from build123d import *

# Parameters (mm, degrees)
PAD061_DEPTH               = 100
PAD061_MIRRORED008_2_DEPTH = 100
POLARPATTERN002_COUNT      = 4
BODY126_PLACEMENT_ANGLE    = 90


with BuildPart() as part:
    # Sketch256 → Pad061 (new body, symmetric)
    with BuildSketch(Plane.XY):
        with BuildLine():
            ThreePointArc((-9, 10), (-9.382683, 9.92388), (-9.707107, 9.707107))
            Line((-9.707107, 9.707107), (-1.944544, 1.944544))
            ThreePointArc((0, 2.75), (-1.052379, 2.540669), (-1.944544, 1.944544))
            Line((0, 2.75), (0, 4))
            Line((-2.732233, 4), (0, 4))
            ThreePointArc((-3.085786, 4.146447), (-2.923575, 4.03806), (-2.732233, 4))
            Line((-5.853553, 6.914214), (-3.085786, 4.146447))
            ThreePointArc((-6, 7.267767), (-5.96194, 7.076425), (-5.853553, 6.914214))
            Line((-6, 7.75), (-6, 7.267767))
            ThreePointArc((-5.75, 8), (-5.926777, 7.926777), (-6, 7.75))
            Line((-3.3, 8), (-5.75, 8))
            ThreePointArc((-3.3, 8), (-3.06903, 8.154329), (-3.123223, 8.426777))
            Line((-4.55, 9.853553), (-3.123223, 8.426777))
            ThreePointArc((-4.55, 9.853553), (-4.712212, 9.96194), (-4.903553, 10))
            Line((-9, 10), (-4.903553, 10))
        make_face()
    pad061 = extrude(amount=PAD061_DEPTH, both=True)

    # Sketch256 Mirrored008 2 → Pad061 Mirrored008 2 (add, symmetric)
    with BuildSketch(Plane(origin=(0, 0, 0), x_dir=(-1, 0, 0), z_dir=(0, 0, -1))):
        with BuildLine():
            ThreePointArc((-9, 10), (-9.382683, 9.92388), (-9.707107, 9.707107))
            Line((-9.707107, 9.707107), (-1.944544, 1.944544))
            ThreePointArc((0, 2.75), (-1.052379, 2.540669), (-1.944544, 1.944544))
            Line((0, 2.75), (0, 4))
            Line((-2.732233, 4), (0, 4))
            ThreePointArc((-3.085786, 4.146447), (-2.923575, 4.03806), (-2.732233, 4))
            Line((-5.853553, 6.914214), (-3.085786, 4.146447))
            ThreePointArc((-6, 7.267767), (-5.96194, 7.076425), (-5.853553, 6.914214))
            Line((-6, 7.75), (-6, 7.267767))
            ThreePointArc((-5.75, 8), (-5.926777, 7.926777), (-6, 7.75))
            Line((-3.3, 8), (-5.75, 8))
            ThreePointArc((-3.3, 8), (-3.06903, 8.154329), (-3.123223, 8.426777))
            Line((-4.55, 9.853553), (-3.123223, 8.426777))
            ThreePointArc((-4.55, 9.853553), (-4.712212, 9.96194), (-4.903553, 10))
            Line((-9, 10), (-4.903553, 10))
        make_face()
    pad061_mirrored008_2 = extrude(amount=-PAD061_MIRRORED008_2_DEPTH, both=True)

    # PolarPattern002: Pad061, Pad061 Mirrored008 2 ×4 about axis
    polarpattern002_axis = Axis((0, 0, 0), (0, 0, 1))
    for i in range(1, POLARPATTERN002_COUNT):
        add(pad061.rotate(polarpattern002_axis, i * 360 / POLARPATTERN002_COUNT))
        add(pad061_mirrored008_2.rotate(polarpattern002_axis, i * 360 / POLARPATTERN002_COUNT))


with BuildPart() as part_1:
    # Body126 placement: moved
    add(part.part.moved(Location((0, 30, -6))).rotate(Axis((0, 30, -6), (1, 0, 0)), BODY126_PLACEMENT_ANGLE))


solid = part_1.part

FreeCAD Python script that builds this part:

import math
import FreeCAD as App
import Part
import Sketcher
from FreeCAD import Vector
Q = App.Units.Quantity

doc = App.newDocument("Part")
body = doc.addObject("PartDesign::Body", "Body")

sketch1 = body.newObject("Sketcher::SketchObject", "Sketch")
sketch1.AttachmentSupport = (doc.getObject("XY_Plane"), [""])
sketch1.MapMode = "FlatFace"
sketch1.addGeometry([
    Part.ArcOfCircle(Part.Circle(Vector(-9, 9, 0), Vector(0, 0, 1), 1), math.radians(90), math.radians(135)),
    Part.LineSegment(Vector(-9.71, 9.71, 0), Vector(-1.94, 1.94, 0)),
    Part.ArcOfCircle(Part.Circle(Vector(0, 0, 0), Vector(0, 0, 1), 2.75), math.radians(90), math.radians(135)),
    Part.LineSegment(Vector(0, 2.75, 0), Vector(0, 4, 0)),
    Part.LineSegment(Vector(0, 4, 0), Vector(-2.73, 4, 0)),
    Part.ArcOfCircle(Part.Circle(Vector(-2.73, 4.5, 0), Vector(0, 0, 1), 0.5), math.radians(-135), math.radians(-90)),
    Part.LineSegment(Vector(-3.09, 4.15, 0), Vector(-5.85, 6.91, 0)),
    Part.ArcOfCircle(Part.Circle(Vector(-5.5, 7.27, 0), Vector(0, 0, 1), 0.5), math.radians(180), math.radians(225)),
    Part.LineSegment(Vector(-6, 7.27, 0), Vector(-6, 7.75, 0)),
    Part.ArcOfCircle(Part.Circle(Vector(-5.75, 7.75, 0), Vector(0, 0, 1), 0.25), math.radians(90), math.radians(180)),
    Part.LineSegment(Vector(-5.75, 8, 0), Vector(-3.3, 8, 0)),
    Part.ArcOfCircle(Part.Circle(Vector(-3.3, 8.25, 0), Vector(0, 0, 1), 0.25), math.radians(-90), math.radians(45)),
    Part.LineSegment(Vector(-3.12, 8.43, 0), Vector(-4.55, 9.85, 0)),
    Part.ArcOfCircle(Part.Circle(Vector(-4.9, 9.5, 0), Vector(0, 0, 1), 0.5), math.radians(45), math.radians(90)),
    Part.LineSegment(Vector(-4.9, 10, 0), Vector(-9, 10, 0)),
], False)
sketch1.addConstraint([
    Sketcher.Constraint("Coincident", 0, 2, 1, 1),
    Sketcher.Constraint("Coincident", 1, 2, 2, 2),
    Sketcher.Constraint("Coincident", 2, 1, 3, 1),
    Sketcher.Constraint("Coincident", 3, 2, 4, 1),
    Sketcher.Constraint("Coincident", 4, 2, 5, 2),
    Sketcher.Constraint("Coincident", 5, 1, 6, 1),
    Sketcher.Constraint("Coincident", 6, 2, 7, 2),
    Sketcher.Constraint("Coincident", 7, 1, 8, 1),
    Sketcher.Constraint("Coincident", 8, 2, 9, 2),
    Sketcher.Constraint("Coincident", 9, 1, 10, 1),
    Sketcher.Constraint("Tangent", 10, 2, 11, 1),
    Sketcher.Constraint("Tangent", 11, 2, 12, 1),
    Sketcher.Constraint("Coincident", 12, 2, 13, 1),
    Sketcher.Constraint("Tangent", 13, 2, 14, 1),
    Sketcher.Constraint("Tangent", 14, 2, 0, 1),
    Sketcher.Constraint("Vertical", 3),
    Sketcher.Constraint("Horizontal", 4),
    Sketcher.Constraint("Vertical", 8),
    Sketcher.Constraint("Horizontal", 10),
    Sketcher.Constraint("Horizontal", 14),
    Sketcher.Constraint("Coincident", 2, 3, -1, 1),
    Sketcher.Constraint("Equal", 5, 7),
    Sketcher.Constraint("Equal", 9, 11),
    Sketcher.Constraint("PointOnObject", 2, 1, -2),
    Sketcher.Constraint("Parallel", 1, 6),
    Sketcher.Constraint("Parallel", 6, 12),
    Sketcher.Constraint("Horizontal", 9, 3, 8, 2),
    Sketcher.Constraint("Radius", 0, 0.999999),
    Sketcher.Constraint("Angle", 1, Q("-45 deg")),
    Sketcher.Constraint("Radius", 9, 0.249999),
    Sketcher.Constraint("DistanceX", 0, 3, -1, 1, 9.000001),
    Sketcher.Constraint("DistanceY", -1, 1, 0, 3, 9.000001),
    Sketcher.Constraint("DistanceY", -1, 1, 3, 2, 4.0),
    Sketcher.Constraint("DistanceX", 7, 1, -1, 1, 6.0),
    Sketcher.Constraint("DistanceY", -1, 1, 9, 1, 8.0),
    Sketcher.Constraint("DistanceX", 10, 1, 10, 2, 2.45),
    Sketcher.Constraint("DistanceY", 3, 1, 3, 2, 1.25),
    Sketcher.Constraint("DistanceX", 11, 3, -1, 1, 3.3),
    Sketcher.Constraint("DistanceY", 0, 3, 13, 3, 0.500002),
    Sketcher.Constraint("DistanceX", 9, 1, 12, 2, 1.2),
    Sketcher.Constraint("DistanceX", 6, 2, 13, 3, 0.95),
    Sketcher.Constraint("Radius", 5, 0.499992),
    Sketcher.Constraint("DistanceX", 0, 2, 7, 3, 4.207099),
    Sketcher.Constraint("DistanceX", 4, 2, 4, 1, 2.732233),
    Sketcher.Constraint("DistanceY", 8, 1, 8, 2, 0.482233),
    Sketcher.Constraint("DistanceY", 7, 3, 13, 3, 2.232238),
    Sketcher.Constraint("DistanceX", 5, 1, 5, 3, 0.353551),
])
pad1 = body.newObject("PartDesign::Pad", "Pad")
pad1.Profile = sketch1
pad1.Length = 200
pad1.Midplane = True

sketch2 = body.newObject("Sketcher::SketchObject", "Sketch001")
sketch2.AttachmentSupport = (doc.getObject("XY_Plane"), [""])
sketch2.MapMode = "FlatFace"
sketch2.addGeometry([
    Part.ArcOfCircle(Part.Circle(Vector(9, 9, 0), Vector(0, 0, 1), 1), math.radians(45), math.radians(90)),
    Part.LineSegment(Vector(9.71, 9.71, 0), Vector(1.94, 1.94, 0)),
    Part.ArcOfCircle(Part.Circle(Vector(0, 0, 0), Vector(0, 0, 1), 2.75), math.radians(45), math.radians(90)),
    Part.LineSegment(Vector(0, 2.75, 0), Vector(0, 4, 0)),
    Part.LineSegment(Vector(0, 4, 0), Vector(2.73, 4, 0)),
    Part.ArcOfCircle(Part.Circle(Vector(2.73, 4.5, 0), Vector(0, 0, 1), 0.5), math.radians(-90), math.radians(-45)),
    Part.LineSegment(Vector(3.09, 4.15, 0), Vector(5.85, 6.91, 0)),
    Part.ArcOfCircle(Part.Circle(Vector(5.5, 7.27, 0), Vector(0, 0, 1), 0.5), math.radians(-45), math.radians(0)),
    Part.LineSegment(Vector(6, 7.27, 0), Vector(6, 7.75, 0)),
    Part.ArcOfCircle(Part.Circle(Vector(5.75, 7.75, 0), Vector(0, 0, 1), 0.25), math.radians(0), math.radians(90)),
    Part.LineSegment(Vector(5.75, 8, 0), Vector(3.3, 8, 0)),
    Part.ArcOfCircle(Part.Circle(Vector(3.3, 8.25, 0), Vector(0, 0, 1), 0.25), math.radians(135), math.radians(270)),
    Part.LineSegment(Vector(3.12, 8.43, 0), Vector(4.55, 9.85, 0)),
    Part.ArcOfCircle(Part.Circle(Vector(4.9, 9.5, 0), Vector(0, 0, 1), 0.5), math.radians(90), math.radians(135)),
    Part.LineSegment(Vector(4.9, 10, 0), Vector(9, 10, 0)),
], False)
sketch2.addConstraint([
    Sketcher.Constraint("Coincident", 0, 1, 1, 1),
    Sketcher.Constraint("Coincident", 1, 2, 2, 1),
    Sketcher.Constraint("Coincident", 2, 2, 3, 1),
    Sketcher.Constraint("Coincident", 3, 2, 4, 1),
    Sketcher.Constraint("Coincident", 4, 2, 5, 1),
    Sketcher.Constraint("Coincident", 5, 2, 6, 1),
    Sketcher.Constraint("Coincident", 6, 2, 7, 1),
    Sketcher.Constraint("Coincident", 7, 2, 8, 1),
    Sketcher.Constraint("Coincident", 8, 2, 9, 1),
    Sketcher.Constraint("Coincident", 9, 2, 10, 1),
    Sketcher.Constraint("Tangent", 10, 2, 11, 2),
    Sketcher.Constraint("Tangent", 11, 1, 12, 1),
    Sketcher.Constraint("Coincident", 12, 2, 13, 2),
    Sketcher.Constraint("Tangent", 13, 1, 14, 1),
    Sketcher.Constraint("Tangent", 14, 2, 0, 2),
    Sketcher.Constraint("Vertical", 3),
    Sketcher.Constraint("Horizontal", 4),
    Sketcher.Constraint("Vertical", 8),
    Sketcher.Constraint("Horizontal", 10),
    Sketcher.Constraint("Horizontal", 14),
    Sketcher.Constraint("Coincident", 2, 3, -1, 1),
    Sketcher.Constraint("Equal", 5, 7),
    Sketcher.Constraint("Equal", 9, 11),
    Sketcher.Constraint("PointOnObject", 2, 2, -2),
    Sketcher.Constraint("Parallel", 1, 6),
    Sketcher.Constraint("Parallel", 6, 12),
    Sketcher.Constraint("Horizontal", 9, 3, 8, 2),
    Sketcher.Constraint("Radius", 0, 0.999999),
    Sketcher.Constraint("Angle", 1, Q("-135 deg")),
    Sketcher.Constraint("Radius", 9, 0.249999),
    Sketcher.Constraint("DistanceX", -1, 1, 0, 3, 9.000001),
    Sketcher.Constraint("DistanceY", -1, 1, 0, 3, 9.000001),
    Sketcher.Constraint("DistanceY", -1, 1, 3, 2, 4.0),
    Sketcher.Constraint("DistanceX", -1, 1, 7, 2, 6.0),
    Sketcher.Constraint("DistanceY", -1, 1, 9, 2, 8.0),
    Sketcher.Constraint("DistanceX", 10, 2, 10, 1, 2.45),
    Sketcher.Constraint("DistanceY", 3, 1, 3, 2, 1.25),
    Sketcher.Constraint("DistanceX", -1, 1, 11, 3, 3.3),
    Sketcher.Constraint("DistanceY", 0, 3, 13, 3, 0.500002),
    Sketcher.Constraint("DistanceX", 12, 2, 9, 2, 1.2),
    Sketcher.Constraint("DistanceX", 13, 3, 6, 2, 0.95),
    Sketcher.Constraint("Radius", 5, 0.499992),
    Sketcher.Constraint("DistanceX", 7, 3, 0, 1, 4.207099),
    Sketcher.Constraint("DistanceX", 4, 1, 4, 2, 2.732233),
    Sketcher.Constraint("DistanceY", 8, 1, 8, 2, 0.482233),
    Sketcher.Constraint("DistanceY", 7, 3, 13, 3, 2.232238),
    Sketcher.Constraint("DistanceX", 5, 3, 5, 2, 0.353551),
])
pad2 = body.newObject("PartDesign::Pad", "Pad001")
pad2.Profile = sketch2
pad2.Length = 200
pad2.Midplane = True
doc.recompute()

polarpattern = body.newObject("PartDesign::PolarPattern", "PolarPattern")
polarpattern.Originals = [pad1, pad2]
polarpattern.Axis = (doc.getObject("Z_Axis"), [""])
polarpattern.Angle = 360
polarpattern.Occurrences = 4
body.Tip = polarpattern
body2 = doc.addObject("PartDesign::Body", "Body001")
doc.recompute()

body.Placement = App.Placement(Vector(0, 30, -6), App.Rotation(Vector(1, 0, 0), 90))
boolean = body2.newObject("PartDesign::Boolean", "Boolean")
boolean.Type = "Fuse"
boolean.addObjects([body])

doc.recompute()
